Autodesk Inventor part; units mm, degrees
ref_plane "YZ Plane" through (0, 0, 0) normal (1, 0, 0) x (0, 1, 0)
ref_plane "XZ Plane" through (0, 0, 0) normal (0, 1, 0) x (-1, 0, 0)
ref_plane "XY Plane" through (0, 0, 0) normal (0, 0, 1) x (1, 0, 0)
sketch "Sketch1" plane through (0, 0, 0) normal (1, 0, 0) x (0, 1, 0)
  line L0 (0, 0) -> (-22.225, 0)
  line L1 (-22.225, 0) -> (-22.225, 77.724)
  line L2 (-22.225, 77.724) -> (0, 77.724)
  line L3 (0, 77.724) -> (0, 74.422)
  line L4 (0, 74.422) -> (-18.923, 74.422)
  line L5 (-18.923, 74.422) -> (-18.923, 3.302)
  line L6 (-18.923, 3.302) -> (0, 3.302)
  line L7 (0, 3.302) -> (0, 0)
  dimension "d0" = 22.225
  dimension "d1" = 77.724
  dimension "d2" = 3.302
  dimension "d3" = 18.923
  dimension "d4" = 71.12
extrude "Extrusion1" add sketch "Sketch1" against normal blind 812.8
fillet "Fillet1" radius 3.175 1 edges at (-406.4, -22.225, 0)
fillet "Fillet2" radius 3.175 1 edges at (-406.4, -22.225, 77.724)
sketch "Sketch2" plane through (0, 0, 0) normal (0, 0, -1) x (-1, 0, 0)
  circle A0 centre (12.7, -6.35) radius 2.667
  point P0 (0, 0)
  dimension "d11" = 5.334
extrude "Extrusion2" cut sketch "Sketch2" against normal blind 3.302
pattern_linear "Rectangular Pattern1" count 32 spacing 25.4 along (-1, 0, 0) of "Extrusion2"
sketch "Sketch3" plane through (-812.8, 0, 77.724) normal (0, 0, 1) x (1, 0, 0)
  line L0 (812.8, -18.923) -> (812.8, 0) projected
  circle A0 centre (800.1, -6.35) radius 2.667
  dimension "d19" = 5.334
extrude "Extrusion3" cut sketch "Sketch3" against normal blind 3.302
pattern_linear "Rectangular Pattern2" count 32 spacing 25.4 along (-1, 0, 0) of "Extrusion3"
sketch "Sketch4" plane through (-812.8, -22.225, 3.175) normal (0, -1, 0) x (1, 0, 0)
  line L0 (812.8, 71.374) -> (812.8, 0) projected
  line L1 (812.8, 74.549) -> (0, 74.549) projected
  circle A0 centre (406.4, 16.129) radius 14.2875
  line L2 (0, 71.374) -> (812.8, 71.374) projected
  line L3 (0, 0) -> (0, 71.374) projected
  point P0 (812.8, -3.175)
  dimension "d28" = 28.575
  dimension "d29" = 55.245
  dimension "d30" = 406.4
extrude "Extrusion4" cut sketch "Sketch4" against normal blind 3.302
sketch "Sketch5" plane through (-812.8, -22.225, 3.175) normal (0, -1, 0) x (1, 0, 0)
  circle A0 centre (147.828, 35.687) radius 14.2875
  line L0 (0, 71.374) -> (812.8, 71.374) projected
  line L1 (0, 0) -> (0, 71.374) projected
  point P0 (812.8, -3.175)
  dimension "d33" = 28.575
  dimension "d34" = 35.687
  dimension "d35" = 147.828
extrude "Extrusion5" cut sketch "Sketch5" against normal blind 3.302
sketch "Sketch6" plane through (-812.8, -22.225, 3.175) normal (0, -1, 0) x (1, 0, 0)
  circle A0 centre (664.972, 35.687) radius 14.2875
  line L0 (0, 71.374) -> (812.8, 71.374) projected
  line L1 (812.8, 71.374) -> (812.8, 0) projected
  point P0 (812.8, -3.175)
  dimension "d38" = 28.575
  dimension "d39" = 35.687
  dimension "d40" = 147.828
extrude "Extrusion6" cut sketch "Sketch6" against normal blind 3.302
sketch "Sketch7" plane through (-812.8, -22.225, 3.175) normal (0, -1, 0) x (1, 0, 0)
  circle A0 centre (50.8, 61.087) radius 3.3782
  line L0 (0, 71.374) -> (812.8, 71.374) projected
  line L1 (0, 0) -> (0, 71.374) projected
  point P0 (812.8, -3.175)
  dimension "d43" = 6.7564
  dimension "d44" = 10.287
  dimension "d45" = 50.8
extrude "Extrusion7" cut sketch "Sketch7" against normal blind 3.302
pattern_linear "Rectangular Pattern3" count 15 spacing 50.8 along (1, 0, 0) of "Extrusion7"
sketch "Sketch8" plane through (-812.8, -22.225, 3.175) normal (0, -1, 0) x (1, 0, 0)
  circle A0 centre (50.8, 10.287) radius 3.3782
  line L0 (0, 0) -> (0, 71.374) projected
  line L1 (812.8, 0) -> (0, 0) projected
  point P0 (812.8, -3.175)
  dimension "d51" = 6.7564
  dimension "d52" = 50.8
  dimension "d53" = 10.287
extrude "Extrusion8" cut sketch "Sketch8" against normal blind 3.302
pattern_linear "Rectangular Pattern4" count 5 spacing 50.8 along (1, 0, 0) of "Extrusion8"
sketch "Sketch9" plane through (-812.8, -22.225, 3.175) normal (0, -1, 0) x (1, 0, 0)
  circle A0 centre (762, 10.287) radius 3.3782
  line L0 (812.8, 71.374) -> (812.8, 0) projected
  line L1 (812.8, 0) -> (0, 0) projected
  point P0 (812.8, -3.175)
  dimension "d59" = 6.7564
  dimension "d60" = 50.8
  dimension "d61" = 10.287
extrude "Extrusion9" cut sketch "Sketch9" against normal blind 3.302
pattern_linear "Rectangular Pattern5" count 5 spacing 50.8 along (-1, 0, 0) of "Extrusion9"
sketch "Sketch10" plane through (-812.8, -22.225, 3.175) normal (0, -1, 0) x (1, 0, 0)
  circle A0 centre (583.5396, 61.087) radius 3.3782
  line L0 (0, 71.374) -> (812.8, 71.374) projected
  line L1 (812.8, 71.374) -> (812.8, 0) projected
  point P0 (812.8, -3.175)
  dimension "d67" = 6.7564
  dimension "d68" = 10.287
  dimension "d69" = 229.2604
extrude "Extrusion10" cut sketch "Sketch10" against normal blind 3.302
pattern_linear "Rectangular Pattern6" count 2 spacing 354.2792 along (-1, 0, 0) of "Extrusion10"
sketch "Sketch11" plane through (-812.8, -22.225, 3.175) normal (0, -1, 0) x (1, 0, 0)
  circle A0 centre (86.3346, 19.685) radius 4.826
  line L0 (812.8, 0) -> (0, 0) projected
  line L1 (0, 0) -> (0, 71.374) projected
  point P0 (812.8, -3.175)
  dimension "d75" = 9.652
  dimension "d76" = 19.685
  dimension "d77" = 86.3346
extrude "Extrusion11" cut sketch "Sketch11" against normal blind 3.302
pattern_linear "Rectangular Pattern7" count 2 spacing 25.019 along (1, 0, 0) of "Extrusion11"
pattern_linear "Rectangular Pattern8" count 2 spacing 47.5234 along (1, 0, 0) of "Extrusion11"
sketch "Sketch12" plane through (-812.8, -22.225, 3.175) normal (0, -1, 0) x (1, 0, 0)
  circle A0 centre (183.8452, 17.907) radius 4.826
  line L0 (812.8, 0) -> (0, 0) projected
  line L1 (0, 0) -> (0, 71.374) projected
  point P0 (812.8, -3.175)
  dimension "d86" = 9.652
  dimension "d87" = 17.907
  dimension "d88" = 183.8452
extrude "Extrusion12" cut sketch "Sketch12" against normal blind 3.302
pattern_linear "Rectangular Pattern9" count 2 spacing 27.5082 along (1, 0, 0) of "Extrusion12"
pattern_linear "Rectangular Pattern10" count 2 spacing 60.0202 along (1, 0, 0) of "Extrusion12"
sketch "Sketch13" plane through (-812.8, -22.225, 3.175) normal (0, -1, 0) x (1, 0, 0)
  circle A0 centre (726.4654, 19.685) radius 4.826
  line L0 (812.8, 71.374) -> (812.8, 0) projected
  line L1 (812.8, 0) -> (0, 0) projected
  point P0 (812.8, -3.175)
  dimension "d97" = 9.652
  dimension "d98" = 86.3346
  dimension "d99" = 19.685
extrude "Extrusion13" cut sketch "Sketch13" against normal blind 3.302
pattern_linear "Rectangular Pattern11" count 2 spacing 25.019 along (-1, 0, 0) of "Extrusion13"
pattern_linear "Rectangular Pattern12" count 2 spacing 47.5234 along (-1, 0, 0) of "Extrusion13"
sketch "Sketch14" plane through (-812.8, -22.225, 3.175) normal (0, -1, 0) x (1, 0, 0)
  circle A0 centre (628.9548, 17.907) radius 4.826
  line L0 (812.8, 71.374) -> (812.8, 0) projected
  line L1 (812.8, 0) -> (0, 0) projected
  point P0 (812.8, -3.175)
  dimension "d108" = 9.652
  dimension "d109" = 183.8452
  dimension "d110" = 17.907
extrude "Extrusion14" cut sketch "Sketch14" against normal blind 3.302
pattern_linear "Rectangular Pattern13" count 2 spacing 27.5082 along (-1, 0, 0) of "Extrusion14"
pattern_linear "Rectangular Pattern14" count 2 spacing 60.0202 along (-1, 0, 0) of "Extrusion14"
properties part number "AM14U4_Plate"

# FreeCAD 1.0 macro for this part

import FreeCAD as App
import Part
import Sketcher

V = App.Vector
Q = App.Units.Quantity


def edges_at(feature, points):
    """Names of the edges that pass closest to the given points."""
    edges = feature.Shape.Edges
    near = lambda p: min(range(len(edges)), key=lambda i: edges[i].distToShape(Part.Vertex(*p))[0])
    return sorted({f"Edge{near(p) + 1}" for p in points})

doc = App.newDocument("Part")
body = doc.addObject("PartDesign::Body", "Body")

sketch1 = body.newObject("Sketcher::SketchObject", "Sketch")
sketch1.AttachmentSupport = (doc.getObject("YZ_Plane"), [""])
sketch1.MapMode = "FlatFace"
sketch1.addGeometry([
    Part.LineSegment(V(-22.225, 0, 0), V(0, 0, 0)),
    Part.LineSegment(V(0, 0, 0), V(0, 3.302, 0)),
    Part.LineSegment(V(0, 3.302, 0), V(-18.923, 3.302, 0)),
    Part.LineSegment(V(-18.923, 3.302, 0), V(-18.923, 74.422, 0)),
    Part.LineSegment(V(-18.923, 74.422, 0), V(0, 74.422, 0)),
    Part.LineSegment(V(0, 74.422, 0), V(0, 77.724, 0)),
    Part.LineSegment(V(0, 77.724, 0), V(-22.225, 77.724, 0)),
    Part.LineSegment(V(-22.225, 77.724, 0), V(-22.225, 0, 0)),
], False)
sketch1.addConstraint([
    Sketcher.Constraint("Coincident", 0, 2, 1, 1),
    Sketcher.Constraint("Coincident", 1, 2, 2, 1),
    Sketcher.Constraint("Coincident", 2, 2, 3, 1),
    Sketcher.Constraint("Coincident", 3, 2, 4, 1),
    Sketcher.Constraint("Coincident", 4, 2, 5, 1),
    Sketcher.Constraint("Coincident", 5, 2, 6, 1),
    Sketcher.Constraint("Coincident", 6, 2, 7, 1),
    Sketcher.Constraint("Coincident", 7, 2, 0, 1),
    Sketcher.Constraint("Horizontal", 0),
    Sketcher.Constraint("Vertical", 1),
    Sketcher.Constraint("Horizontal", 2),
    Sketcher.Constraint("Vertical", 3),
    Sketcher.Constraint("Horizontal", 4),
    Sketcher.Constraint("Vertical", 5),
    Sketcher.Constraint("Horizontal", 6),
    Sketcher.Constraint("Vertical", 7),
    Sketcher.Constraint("Coincident", 0, 2, -1, 1),
    Sketcher.Constraint("PointOnObject", 4, 2, -2),
    Sketcher.Constraint("Equal", 1, 5),
    Sketcher.Constraint("DistanceY", 3, 1, 3, 2, Q("2.8 in")),
    Sketcher.Constraint("DistanceY", 1, 1, 1, 2, Q("0.13 in")),
    Sketcher.Constraint("DistanceX", 0, 1, 0, 2, Q("0.875 in")),
    Sketcher.Constraint("DistanceX", 2, 2, 2, 1, Q("0.745 in")),
])
pad1 = body.newObject("PartDesign::Pad", "Pad")
pad1.Profile = sketch1
pad1.Length = Q("32 in")
pad1.Reversed = True
doc.recompute()

fillet = body.newObject("PartDesign::Fillet", "Fillet")
fillet.Base = (pad1, edges_at(pad1, [(-406.4, -22.225, 0)]))
fillet.Radius = Q("0.125 in")
doc.recompute()

fillet2 = body.newObject("PartDesign::Fillet", "Fillet001")
fillet2.Base = (fillet, edges_at(fillet, [(-406.4, -22.225, 77.724)]))
fillet2.Radius = Q("0.125 in")

sketch2 = body.newObject("Sketcher::SketchObject", "Sketch001")
sketch2.AttachmentSupport = (doc.getObject("XY_Plane"), [""])
sketch2.MapMode = "FlatFace"
sketch2.addGeometry(Part.Circle(V(-12.7, -6.35, 0), V(0, 0, 1), 2.667), False)
sketch2.addConstraint([
    Sketcher.Constraint("Diameter", 0, Q("0.21 in")),
    Sketcher.Constraint("DistanceX", 0, 3, -1, 1, Q("0.5 in")),
    Sketcher.Constraint("DistanceY", 0, 3, -1, 1, Q("0.25 in")),
])
pocket1 = body.newObject("PartDesign::Pocket", "Pocket")
pocket1.Profile = sketch2
pocket1.Length = Q("0.13 in")
pocket1.Reversed = True
doc.recompute()

linearpattern = body.newObject("PartDesign::LinearPattern", "LinearPattern")
linearpattern.Originals = [pocket1]
linearpattern.Direction = (doc.getObject("X_Axis"), [""])
linearpattern.Mode = "offset"
linearpattern.Offset = Q("1 in")
linearpattern.Occurrences = 32
linearpattern.Reversed = True
body.Tip = linearpattern

sketch3 = body.newObject("Sketcher::SketchObject", "Sketch002")
sketch3.AttachmentSupport = (doc.getObject("XY_Plane"), [""])
sketch3.MapMode = "FlatFace"
sketch3.AttachmentOffset = App.Placement(V(0, 0, 3.06 * 25.4), App.Rotation())
sketch3.addGeometry(Part.Circle(V(-12.7, -6.35, 0), V(0, 0, 1), 2.667), False)
sketch3.addConstraint([
    Sketcher.Constraint("Diameter", 0, Q("0.21 in")),
    Sketcher.Constraint("DistanceX", 0, 3, -1, 1, Q("0.5 in")),
    Sketcher.Constraint("DistanceY", 0, 3, -1, 1, Q("0.25 in")),
])
pocket2 = body.newObject("PartDesign::Pocket", "Pocket001")
pocket2.Profile = sketch3
pocket2.Length = Q("0.13 in")
doc.recompute()

linearpattern2 = body.newObject("PartDesign::LinearPattern", "LinearPattern001")
linearpattern2.Originals = [pocket2]
linearpattern2.Direction = (doc.getObject("X_Axis"), [""])
linearpattern2.Mode = "offset"
linearpattern2.Offset = Q("1 in")
linearpattern2.Occurrences = 32
linearpattern2.Reversed = True
body.Tip = linearpattern2

sketch4 = body.newObject("Sketcher::SketchObject", "Sketch003")
sketch4.AttachmentSupport = (doc.getObject("XZ_Plane"), [""])
sketch4.MapMode = "FlatFace"
sketch4.AttachmentOffset = App.Placement(V(0, 0, 0.875 * 25.4), App.Rotation())
sketch4.addGeometry(Part.Circle(V(-406.4, 19.304, 0), V(0, 0, 1), 14.2875), False)
sketch4.addConstraint([
    Sketcher.Constraint("Diameter", 0, Q("1.125 in")),
    Sketcher.Constraint("DistanceX", 0, 3, -1, 1, Q("16 in")),
    Sketcher.Constraint("DistanceY", -1, 1, 0, 3, Q("0.76 in")),
])
pocket3 = body.newObject("PartDesign::Pocket", "Pocket002")
pocket3.Profile = sketch4
pocket3.Length = Q("0.13 in")

sketch5 = body.newObject("Sketcher::SketchObject", "Sketch004")
sketch5.AttachmentSupport = (doc.getObject("XZ_Plane"), [""])
sketch5.MapMode = "FlatFace"
sketch5.AttachmentOffset = App.Placement(V(0, 0, 0.875 * 25.4), App.Rotation())
sketch5.addGeometry(Part.Circle(V(-664.972, 38.862, 0), V(0, 0, 1), 14.2875), False)
sketch5.addConstraint([
    Sketcher.Constraint("Diameter", 0, Q("1.125 in")),
    Sketcher.Constraint("DistanceX", 0, 3, -1, 1, Q("26.18 in")),
    Sketcher.Constraint("DistanceY", -1, 1, 0, 3, Q("1.53 in")),
])
pocket4 = body.newObject("PartDesign::Pocket", "Pocket003")
pocket4.Profile = sketch5
pocket4.Length = Q("0.13 in")

sketch6 = body.newObject("Sketcher::SketchObject", "Sketch005")
sketch6.AttachmentSupport = (doc.getObject("XZ_Plane"), [""])
sketch6.MapMode = "FlatFace"
sketch6.AttachmentOffset = App.Placement(V(0, 0, 0.875 * 25.4), App.Rotation())
sketch6.addGeometry(Part.Circle(V(-147.828, 38.862, 0), V(0, 0, 1), 14.2875), False)
sketch6.addConstraint([
    Sketcher.Constraint("Diameter", 0, Q("1.125 in")),
    Sketcher.Constraint("DistanceX", 0, 3, -1, 1, Q("5.82 in")),
    Sketcher.Constraint("DistanceY", -1, 1, 0, 3, Q("1.53 in")),
])
pocket5 = body.newObject("PartDesign::Pocket", "Pocket004")
pocket5.Profile = sketch6
pocket5.Length = Q("0.13 in")

sketch7 = body.newObject("Sketcher::SketchObject", "Sketch006")
sketch7.AttachmentSupport = (doc.getObject("XZ_Plane"), [""])
sketch7.MapMode = "FlatFace"
sketch7.AttachmentOffset = App.Placement(V(0, 0, 0.875 * 25.4), App.Rotation())
sketch7.addGeometry(Part.Circle(V(-762, 64.262, 0), V(0, 0, 1), 3.3782), False)
sketch7.addConstraint([
    Sketcher.Constraint("Diameter", 0, Q("0.266 in")),
    Sketcher.Constraint("DistanceX", 0, 3, -1, 1, Q("30 in")),
    Sketcher.Constraint("DistanceY", -1, 1, 0, 3, Q("2.53 in")),
])
pocket6 = body.newObject("PartDesign::Pocket", "Pocket005")
pocket6.Profile = sketch7
pocket6.Length = Q("0.13 in")
doc.recompute()

linearpattern3 = body.newObject("PartDesign::LinearPattern", "LinearPattern002")
linearpattern3.Originals = [pocket6]
linearpattern3.Direction = (doc.getObject("X_Axis"), [""])
linearpattern3.Mode = "offset"
linearpattern3.Offset = Q("2 in")
linearpattern3.Occurrences = 15
body.Tip = linearpattern3

sketch8 = body.newObject("Sketcher::SketchObject", "Sketch007")
sketch8.AttachmentSupport = (doc.getObject("XZ_Plane"), [""])
sketch8.MapMode = "FlatFace"
sketch8.AttachmentOffset = App.Placement(V(0, 0, 0.875 * 25.4), App.Rotation())
sketch8.addGeometry(Part.Circle(V(-762, 13.462, 0), V(0, 0, 1), 3.3782), False)
sketch8.addConstraint([
    Sketcher.Constraint("Diameter", 0, Q("0.266 in")),
    Sketcher.Constraint("DistanceX", 0, 3, -1, 1, Q("30 in")),
    Sketcher.Constraint("DistanceY", -1, 1, 0, 3, Q("0.53 in")),
])
pocket7 = body.newObject("PartDesign::Pocket", "Pocket006")
pocket7.Profile = sketch8
pocket7.Length = Q("0.13 in")
doc.recompute()

linearpattern4 = body.newObject("PartDesign::LinearPattern", "LinearPattern003")
linearpattern4.Originals = [pocket7]
linearpattern4.Direction = (doc.getObject("X_Axis"), [""])
linearpattern4.Mode = "offset"
linearpattern4.Offset = Q("2 in")
linearpattern4.Occurrences = 5
body.Tip = linearpattern4

sketch9 = body.newObject("Sketcher::SketchObject", "Sketch008")
sketch9.AttachmentSupport = (doc.getObject("XZ_Plane"), [""])
sketch9.MapMode = "FlatFace"
sketch9.AttachmentOffset = App.Placement(V(0, 0, 0.875 * 25.4), App.Rotation())
sketch9.addGeometry(Part.Circle(V(-50.8, 13.462, 0), V(0, 0, 1), 3.3782), False)
sketch9.addConstraint([
    Sketcher.Constraint("Diameter", 0, Q("0.266 in")),
    Sketcher.Constraint("DistanceX", 0, 3, -1, 1, Q("2 in")),
    Sketcher.Constraint("DistanceY", -1, 1, 0, 3, Q("0.53 in")),
])
pocket8 = body.newObject("PartDesign::Pocket", "Pocket007")
pocket8.Profile = sketch9
pocket8.Length = Q("0.13 in")
doc.recompute()

linearpattern5 = body.newObject("PartDesign::LinearPattern", "LinearPattern004")
linearpattern5.Originals = [pocket8]
linearpattern5.Direction = (doc.getObject("X_Axis"), [""])
linearpattern5.Mode = "offset"
linearpattern5.Offset = Q("2 in")
linearpattern5.Occurrences = 5
linearpattern5.Reversed = True
body.Tip = linearpattern5

sketch10 = body.newObject("Sketcher::SketchObject", "Sketch009")
sketch10.AttachmentSupport = (doc.getObject("XZ_Plane"), [""])
sketch10.MapMode = "FlatFace"
sketch10.AttachmentOffset = App.Placement(V(0, 0, 0.875 * 25.4), App.Rotation())
sketch10.addGeometry(Part.Circle(V(-229.2604, 64.262, 0), V(0, 0, 1), 3.3782), False)
sketch10.addConstraint([
    Sketcher.Constraint("Diameter", 0, Q("0.266 in")),
    Sketcher.Constraint("DistanceX", 0, 3, -1, 1, Q("9.026 in")),
    Sketcher.Constraint("DistanceY", -1, 1, 0, 3, Q("2.53 in")),
])
pocket9 = body.newObject("PartDesign::Pocket", "Pocket008")
pocket9.Profile = sketch10
pocket9.Length = Q("0.13 in")
doc.recompute()

linearpattern6 = body.newObject("PartDesign::LinearPattern", "LinearPattern005")
linearpattern6.Originals = [pocket9]
linearpattern6.Direction = (doc.getObject("X_Axis"), [""])
linearpattern6.Mode = "offset"
linearpattern6.Offset = Q("13.948 in")
linearpattern6.Occurrences = 2
linearpattern6.Reversed = True
body.Tip = linearpattern6

sketch11 = body.newObject("Sketcher::SketchObject", "Sketch010")
sketch11.AttachmentSupport = (doc.getObject("XZ_Plane"), [""])
sketch11.MapMode = "FlatFace"
sketch11.AttachmentOffset = App.Placement(V(0, 0, 0.875 * 25.4), App.Rotation())
sketch11.addGeometry(Part.Circle(V(-726.4654, 22.86, 0), V(0, 0, 1), 4.826), False)
sketch11.addConstraint([
    Sketcher.Constraint("Diameter", 0, Q("0.38 in")),
    Sketcher.Constraint("DistanceY", -1, 1, 0, 3, Q("0.9 in")),
    Sketcher.Constraint("DistanceX", 0, 3, -1, 1, Q("28.601 in")),
])
pocket10 = body.newObject("PartDesign::Pocket", "Pocket009")
pocket10.Profile = sketch11
pocket10.Length = Q("0.13 in")
doc.recompute()

linearpattern7 = body.newObject("PartDesign::LinearPattern", "LinearPattern006")
linearpattern7.Originals = [pocket10]
linearpattern7.Direction = (doc.getObject("X_Axis"), [""])
linearpattern7.Mode = "offset"
linearpattern7.Offset = Q("0.985 in")
linearpattern7.Occurrences = 2
body.Tip = linearpattern7
doc.recompute()

linearpattern8 = body.newObject("PartDesign::LinearPattern", "LinearPattern007")
linearpattern8.Originals = [pocket10]
linearpattern8.Direction = (doc.getObject("X_Axis"), [""])
linearpattern8.Mode = "offset"
linearpattern8.Offset = Q("1.871 in")
linearpattern8.Occurrences = 2
body.Tip = linearpattern8

sketch12 = body.newObject("Sketcher::SketchObject", "Sketch011")
sketch12.AttachmentSupport = (doc.getObject("XZ_Plane"), [""])
sketch12.MapMode = "FlatFace"
sketch12.AttachmentOffset = App.Placement(V(0, 0, 0.875 * 25.4), App.Rotation())
sketch12.addGeometry(Part.Circle(V(-628.9548, 21.082, 0), V(0, 0, 1), 4.826), False)
sketch12.addConstraint([
    Sketcher.Constraint("Diameter", 0, Q("0.38 in")),
    Sketcher.Constraint("DistanceY", -1, 1, 0, 3, Q("0.83 in")),
    Sketcher.Constraint("DistanceX", 0, 3, -1, 1, Q("24.762 in")),
])
pocket11 = body.newObject("PartDesign::Pocket", "Pocket010")
pocket11.Profile = sketch12
pocket11.Length = Q("0.13 in")
doc.recompute()

linearpattern9 = body.newObject("PartDesign::LinearPattern", "LinearPattern008")
linearpattern9.Originals = [pocket11]
linearpattern9.Direction = (doc.getObject("X_Axis"), [""])
linearpattern9.Mode = "offset"
linearpattern9.Offset = Q("1.083 in")
linearpattern9.Occurrences = 2
body.Tip = linearpattern9
doc.recompute()

linearpattern10 = body.newObject("PartDesign::LinearPattern", "LinearPattern009")
linearpattern10.Originals = [pocket11]
linearpattern10.Direction = (doc.getObject("X_Axis"), [""])
linearpattern10.Mode = "offset"
linearpattern10.Offset = Q("2.363 in")
linearpattern10.Occurrences = 2
body.Tip = linearpattern10

sketch13 = body.newObject("Sketcher::SketchObject", "Sketch012")
sketch13.AttachmentSupport = (doc.getObject("XZ_Plane"), [""])
sketch13.MapMode = "FlatFace"
sketch13.AttachmentOffset = App.Placement(V(0, 0, 0.875 * 25.4), App.Rotation())
sketch13.addGeometry(Part.Circle(V(-86.3346, 22.86, 0), V(0, 0, 1), 4.826), False)
sketch13.addConstraint([
    Sketcher.Constraint("Diameter", 0, Q("0.38 in")),
    Sketcher.Constraint("DistanceX", 0, 3, -1, 1, Q("3.399 in")),
    Sketcher.Constraint("DistanceY", -1, 1, 0, 3, Q("0.9 in")),
])
pocket12 = body.newObject("PartDesign::Pocket", "Pocket011")
pocket12.Profile = sketch13
pocket12.Length = Q("0.13 in")
doc.recompute()

linearpattern11 = body.newObject("PartDesign::LinearPattern", "LinearPattern010")
linearpattern11.Originals = [pocket12]
linearpattern11.Direction = (doc.getObject("X_Axis"), [""])
linearpattern11.Mode = "offset"
linearpattern11.Offset = Q("0.985 in")
linearpattern11.Occurrences = 2
linearpattern11.Reversed = True
body.Tip = linearpattern11
doc.recompute()

linearpattern12 = body.newObject("PartDesign::LinearPattern", "LinearPattern011")
linearpattern12.Originals = [pocket12]
linearpattern12.Direction = (doc.getObject("X_Axis"), [""])
linearpattern12.Mode = "offset"
linearpattern12.Offset = Q("1.871 in")
linearpattern12.Occurrences = 2
linearpattern12.Reversed = True
body.Tip = linearpattern12

sketch14 = body.newObject("Sketcher::SketchObject", "Sketch013")
sketch14.AttachmentSupport = (doc.getObject("XZ_Plane"), [""])
sketch14.MapMode = "FlatFace"
sketch14.AttachmentOffset = App.Placement(V(0, 0, 0.875 * 25.4), App.Rotation())
sketch14.addGeometry(Part.Circle(V(-183.8452, 21.082, 0), V(0, 0, 1), 4.826), False)
sketch14.addConstraint([
    Sketcher.Constraint("Diameter", 0, Q("0.38 in")),
    Sketcher.Constraint("DistanceX", 0, 3, -1, 1, Q("7.238 in")),
    Sketcher.Constraint("DistanceY", -1, 1, 0, 3, Q("0.83 in")),
])
pocket13 = body.newObject("PartDesign::Pocket", "Pocket012")
pocket13.Profile = sketch14
pocket13.Length = Q("0.13 in")
doc.recompute()

linearpattern13 = body.newObject("PartDesign::LinearPattern", "LinearPattern012")
linearpattern13.Originals = [pocket13]
linearpattern13.Direction = (doc.getObject("X_Axis"), [""])
linearpattern13.Mode = "offset"
linearpattern13.Offset = Q("1.083 in")
linearpattern13.Occurrences = 2
linearpattern13.Reversed = True
body.Tip = linearpattern13
doc.recompute()

linearpattern14 = body.newObject("PartDesign::LinearPattern", "LinearPattern013")
linearpattern14.Originals = [pocket13]
linearpattern14.Direction = (doc.getObject("X_Axis"), [""])
linearpattern14.Mode = "offset"
linearpattern14.Offset = Q("2.363 in")
linearpattern14.Occurrences = 2
linearpattern14.Reversed = True
body.Tip = linearpattern14

doc.recompute()
